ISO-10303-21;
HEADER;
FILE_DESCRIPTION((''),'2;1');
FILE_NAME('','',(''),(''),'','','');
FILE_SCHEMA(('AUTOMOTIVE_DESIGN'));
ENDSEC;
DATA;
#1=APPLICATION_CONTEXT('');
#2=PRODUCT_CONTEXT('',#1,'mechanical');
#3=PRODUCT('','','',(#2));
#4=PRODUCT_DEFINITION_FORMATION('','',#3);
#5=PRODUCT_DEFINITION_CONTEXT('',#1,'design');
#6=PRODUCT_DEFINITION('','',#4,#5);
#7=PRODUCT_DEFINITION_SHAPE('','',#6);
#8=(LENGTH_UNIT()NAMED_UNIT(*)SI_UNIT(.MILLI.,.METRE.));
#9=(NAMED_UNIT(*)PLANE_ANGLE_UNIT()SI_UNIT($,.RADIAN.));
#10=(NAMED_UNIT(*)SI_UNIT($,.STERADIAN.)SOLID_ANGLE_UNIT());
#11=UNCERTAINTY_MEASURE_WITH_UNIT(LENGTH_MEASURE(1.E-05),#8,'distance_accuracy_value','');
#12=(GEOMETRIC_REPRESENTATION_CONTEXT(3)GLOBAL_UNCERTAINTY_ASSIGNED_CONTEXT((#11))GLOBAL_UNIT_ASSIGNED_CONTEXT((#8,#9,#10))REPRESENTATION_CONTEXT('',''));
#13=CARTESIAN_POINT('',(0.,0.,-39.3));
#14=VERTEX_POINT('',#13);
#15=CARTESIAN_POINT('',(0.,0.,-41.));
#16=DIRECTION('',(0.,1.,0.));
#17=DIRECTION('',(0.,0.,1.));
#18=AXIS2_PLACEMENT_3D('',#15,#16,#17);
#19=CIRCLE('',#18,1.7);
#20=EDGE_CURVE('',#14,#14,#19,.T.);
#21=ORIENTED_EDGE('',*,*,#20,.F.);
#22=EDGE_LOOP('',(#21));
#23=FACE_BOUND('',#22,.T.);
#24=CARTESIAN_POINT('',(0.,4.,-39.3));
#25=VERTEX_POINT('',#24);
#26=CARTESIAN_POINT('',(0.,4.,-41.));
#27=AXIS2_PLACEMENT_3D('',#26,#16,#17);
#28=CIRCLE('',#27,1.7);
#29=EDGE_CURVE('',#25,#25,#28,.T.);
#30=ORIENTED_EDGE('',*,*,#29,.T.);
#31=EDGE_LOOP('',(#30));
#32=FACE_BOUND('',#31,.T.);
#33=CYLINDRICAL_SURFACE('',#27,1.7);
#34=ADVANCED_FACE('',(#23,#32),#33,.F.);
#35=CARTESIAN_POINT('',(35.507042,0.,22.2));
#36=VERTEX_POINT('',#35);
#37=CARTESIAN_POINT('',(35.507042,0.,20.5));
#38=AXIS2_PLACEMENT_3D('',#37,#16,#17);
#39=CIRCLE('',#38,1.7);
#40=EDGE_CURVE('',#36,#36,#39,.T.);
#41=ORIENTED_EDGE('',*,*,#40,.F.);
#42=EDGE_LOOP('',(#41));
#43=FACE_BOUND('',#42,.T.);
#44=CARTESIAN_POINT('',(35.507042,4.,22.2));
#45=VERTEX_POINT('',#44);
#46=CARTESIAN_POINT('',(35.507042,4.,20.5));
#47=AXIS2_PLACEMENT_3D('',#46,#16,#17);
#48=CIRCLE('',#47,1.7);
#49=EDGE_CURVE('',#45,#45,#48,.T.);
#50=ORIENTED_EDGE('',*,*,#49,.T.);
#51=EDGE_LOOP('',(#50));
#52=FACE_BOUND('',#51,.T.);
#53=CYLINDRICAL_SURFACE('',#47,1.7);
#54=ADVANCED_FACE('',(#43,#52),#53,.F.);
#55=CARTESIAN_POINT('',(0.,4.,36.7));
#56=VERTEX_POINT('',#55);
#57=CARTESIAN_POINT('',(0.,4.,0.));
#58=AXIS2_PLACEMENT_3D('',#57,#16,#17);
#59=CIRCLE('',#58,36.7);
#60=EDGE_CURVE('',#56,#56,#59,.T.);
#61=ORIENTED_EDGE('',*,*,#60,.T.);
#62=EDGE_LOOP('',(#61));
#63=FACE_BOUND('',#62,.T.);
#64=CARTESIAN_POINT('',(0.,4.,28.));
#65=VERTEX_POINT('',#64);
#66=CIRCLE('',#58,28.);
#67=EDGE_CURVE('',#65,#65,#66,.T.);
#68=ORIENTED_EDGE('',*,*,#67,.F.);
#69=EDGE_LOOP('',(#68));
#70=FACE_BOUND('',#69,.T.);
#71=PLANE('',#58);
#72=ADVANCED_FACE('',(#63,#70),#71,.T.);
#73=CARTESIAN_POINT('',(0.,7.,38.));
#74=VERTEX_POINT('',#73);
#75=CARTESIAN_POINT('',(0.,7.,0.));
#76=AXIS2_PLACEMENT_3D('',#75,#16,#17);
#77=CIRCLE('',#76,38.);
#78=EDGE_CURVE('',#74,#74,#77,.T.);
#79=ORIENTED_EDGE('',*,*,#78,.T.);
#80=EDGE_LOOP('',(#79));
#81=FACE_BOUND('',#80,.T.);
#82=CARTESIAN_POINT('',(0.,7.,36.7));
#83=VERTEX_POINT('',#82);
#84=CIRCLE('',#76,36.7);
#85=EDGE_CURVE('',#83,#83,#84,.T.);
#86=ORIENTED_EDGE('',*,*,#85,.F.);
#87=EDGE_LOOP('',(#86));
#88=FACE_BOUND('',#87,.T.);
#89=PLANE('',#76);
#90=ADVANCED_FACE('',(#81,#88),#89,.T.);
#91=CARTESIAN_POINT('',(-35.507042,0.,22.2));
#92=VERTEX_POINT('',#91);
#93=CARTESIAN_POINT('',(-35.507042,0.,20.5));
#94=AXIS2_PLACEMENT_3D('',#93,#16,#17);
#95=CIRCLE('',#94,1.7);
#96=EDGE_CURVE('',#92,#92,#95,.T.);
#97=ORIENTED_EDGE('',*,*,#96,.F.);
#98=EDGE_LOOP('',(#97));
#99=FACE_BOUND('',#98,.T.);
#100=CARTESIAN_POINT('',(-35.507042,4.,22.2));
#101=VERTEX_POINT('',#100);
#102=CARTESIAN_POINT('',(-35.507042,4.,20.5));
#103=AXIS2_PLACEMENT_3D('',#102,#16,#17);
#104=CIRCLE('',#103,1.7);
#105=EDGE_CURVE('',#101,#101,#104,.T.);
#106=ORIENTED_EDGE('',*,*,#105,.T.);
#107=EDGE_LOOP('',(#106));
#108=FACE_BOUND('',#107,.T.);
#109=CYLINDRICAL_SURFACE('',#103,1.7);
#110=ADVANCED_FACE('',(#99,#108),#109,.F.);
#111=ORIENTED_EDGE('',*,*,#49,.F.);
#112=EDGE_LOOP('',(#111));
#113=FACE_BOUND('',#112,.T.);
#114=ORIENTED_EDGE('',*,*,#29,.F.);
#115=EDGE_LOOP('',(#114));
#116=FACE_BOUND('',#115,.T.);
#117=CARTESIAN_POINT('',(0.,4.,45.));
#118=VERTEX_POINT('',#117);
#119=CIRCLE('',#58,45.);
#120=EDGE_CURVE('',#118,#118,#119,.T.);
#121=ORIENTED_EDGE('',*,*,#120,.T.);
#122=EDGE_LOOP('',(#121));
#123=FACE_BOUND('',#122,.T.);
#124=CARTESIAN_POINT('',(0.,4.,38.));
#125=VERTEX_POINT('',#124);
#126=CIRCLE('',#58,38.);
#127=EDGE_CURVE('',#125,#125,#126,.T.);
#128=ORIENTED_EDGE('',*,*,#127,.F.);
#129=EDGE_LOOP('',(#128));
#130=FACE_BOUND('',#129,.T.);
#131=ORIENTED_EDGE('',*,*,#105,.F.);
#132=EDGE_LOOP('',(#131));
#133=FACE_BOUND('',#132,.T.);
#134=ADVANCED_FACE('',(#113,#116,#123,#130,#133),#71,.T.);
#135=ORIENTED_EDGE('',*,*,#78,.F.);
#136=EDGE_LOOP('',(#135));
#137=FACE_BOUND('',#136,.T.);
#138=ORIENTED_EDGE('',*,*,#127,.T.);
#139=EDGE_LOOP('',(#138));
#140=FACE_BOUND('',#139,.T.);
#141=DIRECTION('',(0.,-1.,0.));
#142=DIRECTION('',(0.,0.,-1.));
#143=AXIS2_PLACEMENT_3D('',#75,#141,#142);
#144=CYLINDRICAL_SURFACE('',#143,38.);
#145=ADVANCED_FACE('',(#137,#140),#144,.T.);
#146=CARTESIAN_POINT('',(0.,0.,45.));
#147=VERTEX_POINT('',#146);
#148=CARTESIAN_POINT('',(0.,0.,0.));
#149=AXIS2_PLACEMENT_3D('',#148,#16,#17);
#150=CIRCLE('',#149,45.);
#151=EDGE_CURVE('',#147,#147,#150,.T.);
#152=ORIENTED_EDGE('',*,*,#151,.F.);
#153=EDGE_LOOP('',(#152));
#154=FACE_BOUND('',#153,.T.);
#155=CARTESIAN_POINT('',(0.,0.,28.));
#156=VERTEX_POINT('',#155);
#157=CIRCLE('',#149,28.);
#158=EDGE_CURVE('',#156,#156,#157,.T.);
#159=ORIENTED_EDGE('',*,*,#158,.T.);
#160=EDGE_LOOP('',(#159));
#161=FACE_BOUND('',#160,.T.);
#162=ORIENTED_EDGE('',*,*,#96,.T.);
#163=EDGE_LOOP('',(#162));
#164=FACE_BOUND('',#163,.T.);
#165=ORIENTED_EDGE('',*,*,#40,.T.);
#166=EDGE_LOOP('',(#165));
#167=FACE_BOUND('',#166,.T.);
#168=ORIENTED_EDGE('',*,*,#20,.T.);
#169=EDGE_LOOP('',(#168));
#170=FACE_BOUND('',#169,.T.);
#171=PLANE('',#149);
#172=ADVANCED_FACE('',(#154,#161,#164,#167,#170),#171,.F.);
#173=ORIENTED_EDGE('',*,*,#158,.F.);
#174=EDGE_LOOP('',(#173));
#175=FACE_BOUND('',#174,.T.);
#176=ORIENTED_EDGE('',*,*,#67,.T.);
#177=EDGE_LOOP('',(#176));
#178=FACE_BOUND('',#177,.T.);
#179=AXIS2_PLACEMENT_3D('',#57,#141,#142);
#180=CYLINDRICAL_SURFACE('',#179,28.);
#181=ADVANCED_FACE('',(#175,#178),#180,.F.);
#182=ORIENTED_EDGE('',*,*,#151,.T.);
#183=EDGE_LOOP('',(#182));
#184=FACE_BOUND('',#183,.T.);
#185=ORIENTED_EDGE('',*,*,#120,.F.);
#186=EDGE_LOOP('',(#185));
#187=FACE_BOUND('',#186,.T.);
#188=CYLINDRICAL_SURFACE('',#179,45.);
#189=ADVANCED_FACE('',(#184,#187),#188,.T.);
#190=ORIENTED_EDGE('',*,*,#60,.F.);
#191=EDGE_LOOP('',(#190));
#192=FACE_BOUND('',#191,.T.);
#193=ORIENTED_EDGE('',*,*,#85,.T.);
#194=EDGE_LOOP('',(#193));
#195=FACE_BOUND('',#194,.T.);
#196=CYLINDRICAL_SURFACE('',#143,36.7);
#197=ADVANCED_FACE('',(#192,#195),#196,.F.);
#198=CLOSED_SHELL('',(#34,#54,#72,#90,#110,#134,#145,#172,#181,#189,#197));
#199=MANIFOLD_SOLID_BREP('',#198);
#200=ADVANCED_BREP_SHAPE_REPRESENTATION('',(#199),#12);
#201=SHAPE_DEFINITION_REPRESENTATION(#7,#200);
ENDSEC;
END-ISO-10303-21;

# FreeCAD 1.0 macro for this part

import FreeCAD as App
import Part
import Sketcher
from FreeCAD import Vector
Q = App.Units.Quantity

doc = App.newDocument("Part")
body = doc.addObject("PartDesign::Body", "Body")

# Sketch on XZ plane
sketch1 = body.newObject("Sketcher::SketchObject", "Sketch")
sketch1.AttachmentSupport = (doc.getObject("XZ_Plane"), [""])
sketch1.MapMode = "FlatFace"
sketch1.addGeometry(Part.Circle(Vector(0, 0, 0), Vector(0, 0, 1), 45), False)
sketch1.addGeometry(Part.Circle(Vector(0, 0, 0), Vector(0, 0, 1), 28), False)
sketch1.addConstraint(Sketcher.Constraint("Coincident", 0, 3, -1, 1))
sketch1.addConstraint(Sketcher.Constraint("Coincident", 1, 3, -1, 1))
sketch1.addConstraint(Sketcher.Constraint("Diameter", 0, Q("90 mm")))
sketch1.addConstraint(Sketcher.Constraint("Diameter", 1, Q("56 mm")))
pad1 = body.newObject("PartDesign::Pad", "Pad")
pad1.Profile = sketch1
pad1.Length = 4
pad1.Reversed = True

# Sketch on XZ plane
sketch2 = body.newObject("Sketcher::SketchObject", "Sketch001")
sketch2.AttachmentSupport = (doc.getObject("XZ_Plane"), [""])
sketch2.MapMode = "FlatFace"
sketch2.AttachmentOffset = App.Placement(Vector(0, 0, -4), App.Rotation())
sketch2.addGeometry(Part.Circle(Vector(0, 0, 0), Vector(0, 0, 1), 38), False)
sketch2.addGeometry(Part.Circle(Vector(0, 0, 0), Vector(0, 0, 1), 37), False)
sketch2.addConstraint(Sketcher.Constraint("Coincident", 0, 3, -1, 1))
sketch2.addConstraint(Sketcher.Constraint("Coincident", 1, 3, -1, 1))
sketch2.addConstraint(Sketcher.Constraint("Diameter", 0, Q("76 mm")))
sketch2.addConstraint(Sketcher.Constraint("Diameter", 1, Q("73.4 mm")))
pad2 = body.newObject("PartDesign::Pad", "Pad001")
pad2.Profile = sketch2
pad2.Length = 3
pad2.Reversed = True

# Sketch on XZ plane
sketch3 = body.newObject("Sketcher::SketchObject", "Sketch002")
sketch3.AttachmentSupport = (doc.getObject("XZ_Plane"), [""])
sketch3.MapMode = "FlatFace"
sketch3.AttachmentOffset = App.Placement(Vector(0, 0, -4), App.Rotation())
sketch3.addGeometry(Part.Circle(Vector(-35.5, 20.5, 0), Vector(0, 0, 1), 1.7), False)
sketch3.addGeometry(Part.Circle(Vector(0, -41, 0), Vector(0, 0, 1), 1.7), False)
sketch3.addGeometry(Part.Circle(Vector(35.5, 20.5, 0), Vector(0, 0, 1), 1.7), False)
sketch3.addConstraint(Sketcher.Constraint("Equal", 0, 1))
sketch3.addConstraint(Sketcher.Constraint("Equal", 1, 2))
sketch3.addConstraint(Sketcher.Constraint("Symmetric", 0, 3, 2, 3, -2))
sketch3.addConstraint(Sketcher.Constraint("PointOnObject", 1, 3, -2))
sketch3.addConstraint(Sketcher.Constraint("Diameter", 0, Q("3.4 mm")))
sketch3.addConstraint(Sketcher.Constraint("DistanceY", 1, 3, -1, 1, Q("41 mm")))
sketch3.addConstraint(Sketcher.Constraint("DistanceY", -1, 1, 0, 3, Q("20.5 mm")))
sketch3.addConstraint(Sketcher.Constraint("DistanceX", 0, 3, -1, 1, Q("35.507042 mm")))
doc.recompute()
hole = body.newObject("PartDesign::Hole", "Hole")
hole.Profile = sketch3
hole.ThreadType = "None"
hole.Diameter = 3.4
hole.DepthType = "ThroughAll"
hole.Reversed = True

doc.recompute()
